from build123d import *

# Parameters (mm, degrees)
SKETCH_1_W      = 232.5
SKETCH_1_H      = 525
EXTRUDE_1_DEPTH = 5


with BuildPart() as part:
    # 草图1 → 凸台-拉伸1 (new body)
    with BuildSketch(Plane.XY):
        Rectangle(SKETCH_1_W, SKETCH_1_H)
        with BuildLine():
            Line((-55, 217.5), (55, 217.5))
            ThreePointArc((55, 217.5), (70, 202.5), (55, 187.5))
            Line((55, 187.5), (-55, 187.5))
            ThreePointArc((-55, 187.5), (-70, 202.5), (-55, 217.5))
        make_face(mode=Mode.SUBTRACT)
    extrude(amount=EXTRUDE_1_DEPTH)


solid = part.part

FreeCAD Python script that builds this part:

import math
import FreeCAD as App
import Part
import Sketcher
Q = App.Units.Quantity


def add_polygon(sketch, points):
    """Adds a closed chain of lines whose ends are joined by coincident constraints."""
    first, n = sketch.GeometryCount, len(points)
    for a, b in zip(points, points[1:] + points[:1]):
        sketch.addGeometry(Part.LineSegment(App.Vector(*a, 0), App.Vector(*b, 0)), False)
    for i in range(n):
        sketch.addConstraint(Sketcher.Constraint("Coincident", first + i, 2, first + (i + 1) % n, 1))

doc = App.newDocument("Part")
body = doc.addObject("PartDesign::Body", "Body")

# Sketch on XY plane
sketch1 = body.newObject("Sketcher::SketchObject", "Sketch")
sketch1.AttachmentSupport = (doc.getObject("XY_Plane"), [""])
sketch1.MapMode = "FlatFace"
add_polygon(sketch1, [(-116, 262), (-116, -262), (116, -262), (116, 262)])  # lines 0-3
sketch1.addGeometry(Part.ArcOfCircle(Part.Circle(App.Vector(-55, 202, 0), App.Vector(0, 0, 1), 15), math.radians(90), math.radians(270)), False)  # 4
sketch1.addGeometry(Part.LineSegment(App.Vector(-55, 218, 0), App.Vector(55, 218, 0)), False)  # 5
sketch1.addGeometry(Part.ArcOfCircle(Part.Circle(App.Vector(55, 202, 0), App.Vector(0, 0, 1), 15), math.radians(-90), math.radians(90)), False)  # 6
sketch1.addGeometry(Part.LineSegment(App.Vector(55, 188, 0), App.Vector(-55, 188, 0)), False)  # 7
sketch1.addConstraint([
    Sketcher.Constraint("Tangent", 4, 1, 5, 1),
    Sketcher.Constraint("Tangent", 5, 2, 6, 2),
    Sketcher.Constraint("Tangent", 6, 1, 7, 1),
    Sketcher.Constraint("Tangent", 7, 2, 4, 2),
    Sketcher.Constraint("Vertical", 0),
    Sketcher.Constraint("Horizontal", 1),
    Sketcher.Constraint("Vertical", 2),
    Sketcher.Constraint("Horizontal", 3),
    Sketcher.Constraint("Horizontal", 5),
    Sketcher.Constraint("Horizontal", 7),
    Sketcher.Constraint("Symmetric", 0, 2, 2, 2, -1, 1),
    Sketcher.Constraint("Radius", 4, Q("15 mm")),
    Sketcher.Constraint("DistanceX", 5, 1, 5, 2, Q("110 mm")),
    Sketcher.Constraint("DistanceY", 0, 2, 0, 1, Q("525 mm")),
    Sketcher.Constraint("DistanceX", 1, 1, 1, 2, Q("232.5 mm")),
    Sketcher.Constraint("DistanceX", 4, 3, -1, 1, Q("55 mm")),
    Sketcher.Constraint("DistanceY", 0, 2, 4, 3, Q("465 mm")),
])
pad1 = body.newObject("PartDesign::Pad", "Pad")
pad1.Profile = sketch1
pad1.Length = 5

doc.recompute()
